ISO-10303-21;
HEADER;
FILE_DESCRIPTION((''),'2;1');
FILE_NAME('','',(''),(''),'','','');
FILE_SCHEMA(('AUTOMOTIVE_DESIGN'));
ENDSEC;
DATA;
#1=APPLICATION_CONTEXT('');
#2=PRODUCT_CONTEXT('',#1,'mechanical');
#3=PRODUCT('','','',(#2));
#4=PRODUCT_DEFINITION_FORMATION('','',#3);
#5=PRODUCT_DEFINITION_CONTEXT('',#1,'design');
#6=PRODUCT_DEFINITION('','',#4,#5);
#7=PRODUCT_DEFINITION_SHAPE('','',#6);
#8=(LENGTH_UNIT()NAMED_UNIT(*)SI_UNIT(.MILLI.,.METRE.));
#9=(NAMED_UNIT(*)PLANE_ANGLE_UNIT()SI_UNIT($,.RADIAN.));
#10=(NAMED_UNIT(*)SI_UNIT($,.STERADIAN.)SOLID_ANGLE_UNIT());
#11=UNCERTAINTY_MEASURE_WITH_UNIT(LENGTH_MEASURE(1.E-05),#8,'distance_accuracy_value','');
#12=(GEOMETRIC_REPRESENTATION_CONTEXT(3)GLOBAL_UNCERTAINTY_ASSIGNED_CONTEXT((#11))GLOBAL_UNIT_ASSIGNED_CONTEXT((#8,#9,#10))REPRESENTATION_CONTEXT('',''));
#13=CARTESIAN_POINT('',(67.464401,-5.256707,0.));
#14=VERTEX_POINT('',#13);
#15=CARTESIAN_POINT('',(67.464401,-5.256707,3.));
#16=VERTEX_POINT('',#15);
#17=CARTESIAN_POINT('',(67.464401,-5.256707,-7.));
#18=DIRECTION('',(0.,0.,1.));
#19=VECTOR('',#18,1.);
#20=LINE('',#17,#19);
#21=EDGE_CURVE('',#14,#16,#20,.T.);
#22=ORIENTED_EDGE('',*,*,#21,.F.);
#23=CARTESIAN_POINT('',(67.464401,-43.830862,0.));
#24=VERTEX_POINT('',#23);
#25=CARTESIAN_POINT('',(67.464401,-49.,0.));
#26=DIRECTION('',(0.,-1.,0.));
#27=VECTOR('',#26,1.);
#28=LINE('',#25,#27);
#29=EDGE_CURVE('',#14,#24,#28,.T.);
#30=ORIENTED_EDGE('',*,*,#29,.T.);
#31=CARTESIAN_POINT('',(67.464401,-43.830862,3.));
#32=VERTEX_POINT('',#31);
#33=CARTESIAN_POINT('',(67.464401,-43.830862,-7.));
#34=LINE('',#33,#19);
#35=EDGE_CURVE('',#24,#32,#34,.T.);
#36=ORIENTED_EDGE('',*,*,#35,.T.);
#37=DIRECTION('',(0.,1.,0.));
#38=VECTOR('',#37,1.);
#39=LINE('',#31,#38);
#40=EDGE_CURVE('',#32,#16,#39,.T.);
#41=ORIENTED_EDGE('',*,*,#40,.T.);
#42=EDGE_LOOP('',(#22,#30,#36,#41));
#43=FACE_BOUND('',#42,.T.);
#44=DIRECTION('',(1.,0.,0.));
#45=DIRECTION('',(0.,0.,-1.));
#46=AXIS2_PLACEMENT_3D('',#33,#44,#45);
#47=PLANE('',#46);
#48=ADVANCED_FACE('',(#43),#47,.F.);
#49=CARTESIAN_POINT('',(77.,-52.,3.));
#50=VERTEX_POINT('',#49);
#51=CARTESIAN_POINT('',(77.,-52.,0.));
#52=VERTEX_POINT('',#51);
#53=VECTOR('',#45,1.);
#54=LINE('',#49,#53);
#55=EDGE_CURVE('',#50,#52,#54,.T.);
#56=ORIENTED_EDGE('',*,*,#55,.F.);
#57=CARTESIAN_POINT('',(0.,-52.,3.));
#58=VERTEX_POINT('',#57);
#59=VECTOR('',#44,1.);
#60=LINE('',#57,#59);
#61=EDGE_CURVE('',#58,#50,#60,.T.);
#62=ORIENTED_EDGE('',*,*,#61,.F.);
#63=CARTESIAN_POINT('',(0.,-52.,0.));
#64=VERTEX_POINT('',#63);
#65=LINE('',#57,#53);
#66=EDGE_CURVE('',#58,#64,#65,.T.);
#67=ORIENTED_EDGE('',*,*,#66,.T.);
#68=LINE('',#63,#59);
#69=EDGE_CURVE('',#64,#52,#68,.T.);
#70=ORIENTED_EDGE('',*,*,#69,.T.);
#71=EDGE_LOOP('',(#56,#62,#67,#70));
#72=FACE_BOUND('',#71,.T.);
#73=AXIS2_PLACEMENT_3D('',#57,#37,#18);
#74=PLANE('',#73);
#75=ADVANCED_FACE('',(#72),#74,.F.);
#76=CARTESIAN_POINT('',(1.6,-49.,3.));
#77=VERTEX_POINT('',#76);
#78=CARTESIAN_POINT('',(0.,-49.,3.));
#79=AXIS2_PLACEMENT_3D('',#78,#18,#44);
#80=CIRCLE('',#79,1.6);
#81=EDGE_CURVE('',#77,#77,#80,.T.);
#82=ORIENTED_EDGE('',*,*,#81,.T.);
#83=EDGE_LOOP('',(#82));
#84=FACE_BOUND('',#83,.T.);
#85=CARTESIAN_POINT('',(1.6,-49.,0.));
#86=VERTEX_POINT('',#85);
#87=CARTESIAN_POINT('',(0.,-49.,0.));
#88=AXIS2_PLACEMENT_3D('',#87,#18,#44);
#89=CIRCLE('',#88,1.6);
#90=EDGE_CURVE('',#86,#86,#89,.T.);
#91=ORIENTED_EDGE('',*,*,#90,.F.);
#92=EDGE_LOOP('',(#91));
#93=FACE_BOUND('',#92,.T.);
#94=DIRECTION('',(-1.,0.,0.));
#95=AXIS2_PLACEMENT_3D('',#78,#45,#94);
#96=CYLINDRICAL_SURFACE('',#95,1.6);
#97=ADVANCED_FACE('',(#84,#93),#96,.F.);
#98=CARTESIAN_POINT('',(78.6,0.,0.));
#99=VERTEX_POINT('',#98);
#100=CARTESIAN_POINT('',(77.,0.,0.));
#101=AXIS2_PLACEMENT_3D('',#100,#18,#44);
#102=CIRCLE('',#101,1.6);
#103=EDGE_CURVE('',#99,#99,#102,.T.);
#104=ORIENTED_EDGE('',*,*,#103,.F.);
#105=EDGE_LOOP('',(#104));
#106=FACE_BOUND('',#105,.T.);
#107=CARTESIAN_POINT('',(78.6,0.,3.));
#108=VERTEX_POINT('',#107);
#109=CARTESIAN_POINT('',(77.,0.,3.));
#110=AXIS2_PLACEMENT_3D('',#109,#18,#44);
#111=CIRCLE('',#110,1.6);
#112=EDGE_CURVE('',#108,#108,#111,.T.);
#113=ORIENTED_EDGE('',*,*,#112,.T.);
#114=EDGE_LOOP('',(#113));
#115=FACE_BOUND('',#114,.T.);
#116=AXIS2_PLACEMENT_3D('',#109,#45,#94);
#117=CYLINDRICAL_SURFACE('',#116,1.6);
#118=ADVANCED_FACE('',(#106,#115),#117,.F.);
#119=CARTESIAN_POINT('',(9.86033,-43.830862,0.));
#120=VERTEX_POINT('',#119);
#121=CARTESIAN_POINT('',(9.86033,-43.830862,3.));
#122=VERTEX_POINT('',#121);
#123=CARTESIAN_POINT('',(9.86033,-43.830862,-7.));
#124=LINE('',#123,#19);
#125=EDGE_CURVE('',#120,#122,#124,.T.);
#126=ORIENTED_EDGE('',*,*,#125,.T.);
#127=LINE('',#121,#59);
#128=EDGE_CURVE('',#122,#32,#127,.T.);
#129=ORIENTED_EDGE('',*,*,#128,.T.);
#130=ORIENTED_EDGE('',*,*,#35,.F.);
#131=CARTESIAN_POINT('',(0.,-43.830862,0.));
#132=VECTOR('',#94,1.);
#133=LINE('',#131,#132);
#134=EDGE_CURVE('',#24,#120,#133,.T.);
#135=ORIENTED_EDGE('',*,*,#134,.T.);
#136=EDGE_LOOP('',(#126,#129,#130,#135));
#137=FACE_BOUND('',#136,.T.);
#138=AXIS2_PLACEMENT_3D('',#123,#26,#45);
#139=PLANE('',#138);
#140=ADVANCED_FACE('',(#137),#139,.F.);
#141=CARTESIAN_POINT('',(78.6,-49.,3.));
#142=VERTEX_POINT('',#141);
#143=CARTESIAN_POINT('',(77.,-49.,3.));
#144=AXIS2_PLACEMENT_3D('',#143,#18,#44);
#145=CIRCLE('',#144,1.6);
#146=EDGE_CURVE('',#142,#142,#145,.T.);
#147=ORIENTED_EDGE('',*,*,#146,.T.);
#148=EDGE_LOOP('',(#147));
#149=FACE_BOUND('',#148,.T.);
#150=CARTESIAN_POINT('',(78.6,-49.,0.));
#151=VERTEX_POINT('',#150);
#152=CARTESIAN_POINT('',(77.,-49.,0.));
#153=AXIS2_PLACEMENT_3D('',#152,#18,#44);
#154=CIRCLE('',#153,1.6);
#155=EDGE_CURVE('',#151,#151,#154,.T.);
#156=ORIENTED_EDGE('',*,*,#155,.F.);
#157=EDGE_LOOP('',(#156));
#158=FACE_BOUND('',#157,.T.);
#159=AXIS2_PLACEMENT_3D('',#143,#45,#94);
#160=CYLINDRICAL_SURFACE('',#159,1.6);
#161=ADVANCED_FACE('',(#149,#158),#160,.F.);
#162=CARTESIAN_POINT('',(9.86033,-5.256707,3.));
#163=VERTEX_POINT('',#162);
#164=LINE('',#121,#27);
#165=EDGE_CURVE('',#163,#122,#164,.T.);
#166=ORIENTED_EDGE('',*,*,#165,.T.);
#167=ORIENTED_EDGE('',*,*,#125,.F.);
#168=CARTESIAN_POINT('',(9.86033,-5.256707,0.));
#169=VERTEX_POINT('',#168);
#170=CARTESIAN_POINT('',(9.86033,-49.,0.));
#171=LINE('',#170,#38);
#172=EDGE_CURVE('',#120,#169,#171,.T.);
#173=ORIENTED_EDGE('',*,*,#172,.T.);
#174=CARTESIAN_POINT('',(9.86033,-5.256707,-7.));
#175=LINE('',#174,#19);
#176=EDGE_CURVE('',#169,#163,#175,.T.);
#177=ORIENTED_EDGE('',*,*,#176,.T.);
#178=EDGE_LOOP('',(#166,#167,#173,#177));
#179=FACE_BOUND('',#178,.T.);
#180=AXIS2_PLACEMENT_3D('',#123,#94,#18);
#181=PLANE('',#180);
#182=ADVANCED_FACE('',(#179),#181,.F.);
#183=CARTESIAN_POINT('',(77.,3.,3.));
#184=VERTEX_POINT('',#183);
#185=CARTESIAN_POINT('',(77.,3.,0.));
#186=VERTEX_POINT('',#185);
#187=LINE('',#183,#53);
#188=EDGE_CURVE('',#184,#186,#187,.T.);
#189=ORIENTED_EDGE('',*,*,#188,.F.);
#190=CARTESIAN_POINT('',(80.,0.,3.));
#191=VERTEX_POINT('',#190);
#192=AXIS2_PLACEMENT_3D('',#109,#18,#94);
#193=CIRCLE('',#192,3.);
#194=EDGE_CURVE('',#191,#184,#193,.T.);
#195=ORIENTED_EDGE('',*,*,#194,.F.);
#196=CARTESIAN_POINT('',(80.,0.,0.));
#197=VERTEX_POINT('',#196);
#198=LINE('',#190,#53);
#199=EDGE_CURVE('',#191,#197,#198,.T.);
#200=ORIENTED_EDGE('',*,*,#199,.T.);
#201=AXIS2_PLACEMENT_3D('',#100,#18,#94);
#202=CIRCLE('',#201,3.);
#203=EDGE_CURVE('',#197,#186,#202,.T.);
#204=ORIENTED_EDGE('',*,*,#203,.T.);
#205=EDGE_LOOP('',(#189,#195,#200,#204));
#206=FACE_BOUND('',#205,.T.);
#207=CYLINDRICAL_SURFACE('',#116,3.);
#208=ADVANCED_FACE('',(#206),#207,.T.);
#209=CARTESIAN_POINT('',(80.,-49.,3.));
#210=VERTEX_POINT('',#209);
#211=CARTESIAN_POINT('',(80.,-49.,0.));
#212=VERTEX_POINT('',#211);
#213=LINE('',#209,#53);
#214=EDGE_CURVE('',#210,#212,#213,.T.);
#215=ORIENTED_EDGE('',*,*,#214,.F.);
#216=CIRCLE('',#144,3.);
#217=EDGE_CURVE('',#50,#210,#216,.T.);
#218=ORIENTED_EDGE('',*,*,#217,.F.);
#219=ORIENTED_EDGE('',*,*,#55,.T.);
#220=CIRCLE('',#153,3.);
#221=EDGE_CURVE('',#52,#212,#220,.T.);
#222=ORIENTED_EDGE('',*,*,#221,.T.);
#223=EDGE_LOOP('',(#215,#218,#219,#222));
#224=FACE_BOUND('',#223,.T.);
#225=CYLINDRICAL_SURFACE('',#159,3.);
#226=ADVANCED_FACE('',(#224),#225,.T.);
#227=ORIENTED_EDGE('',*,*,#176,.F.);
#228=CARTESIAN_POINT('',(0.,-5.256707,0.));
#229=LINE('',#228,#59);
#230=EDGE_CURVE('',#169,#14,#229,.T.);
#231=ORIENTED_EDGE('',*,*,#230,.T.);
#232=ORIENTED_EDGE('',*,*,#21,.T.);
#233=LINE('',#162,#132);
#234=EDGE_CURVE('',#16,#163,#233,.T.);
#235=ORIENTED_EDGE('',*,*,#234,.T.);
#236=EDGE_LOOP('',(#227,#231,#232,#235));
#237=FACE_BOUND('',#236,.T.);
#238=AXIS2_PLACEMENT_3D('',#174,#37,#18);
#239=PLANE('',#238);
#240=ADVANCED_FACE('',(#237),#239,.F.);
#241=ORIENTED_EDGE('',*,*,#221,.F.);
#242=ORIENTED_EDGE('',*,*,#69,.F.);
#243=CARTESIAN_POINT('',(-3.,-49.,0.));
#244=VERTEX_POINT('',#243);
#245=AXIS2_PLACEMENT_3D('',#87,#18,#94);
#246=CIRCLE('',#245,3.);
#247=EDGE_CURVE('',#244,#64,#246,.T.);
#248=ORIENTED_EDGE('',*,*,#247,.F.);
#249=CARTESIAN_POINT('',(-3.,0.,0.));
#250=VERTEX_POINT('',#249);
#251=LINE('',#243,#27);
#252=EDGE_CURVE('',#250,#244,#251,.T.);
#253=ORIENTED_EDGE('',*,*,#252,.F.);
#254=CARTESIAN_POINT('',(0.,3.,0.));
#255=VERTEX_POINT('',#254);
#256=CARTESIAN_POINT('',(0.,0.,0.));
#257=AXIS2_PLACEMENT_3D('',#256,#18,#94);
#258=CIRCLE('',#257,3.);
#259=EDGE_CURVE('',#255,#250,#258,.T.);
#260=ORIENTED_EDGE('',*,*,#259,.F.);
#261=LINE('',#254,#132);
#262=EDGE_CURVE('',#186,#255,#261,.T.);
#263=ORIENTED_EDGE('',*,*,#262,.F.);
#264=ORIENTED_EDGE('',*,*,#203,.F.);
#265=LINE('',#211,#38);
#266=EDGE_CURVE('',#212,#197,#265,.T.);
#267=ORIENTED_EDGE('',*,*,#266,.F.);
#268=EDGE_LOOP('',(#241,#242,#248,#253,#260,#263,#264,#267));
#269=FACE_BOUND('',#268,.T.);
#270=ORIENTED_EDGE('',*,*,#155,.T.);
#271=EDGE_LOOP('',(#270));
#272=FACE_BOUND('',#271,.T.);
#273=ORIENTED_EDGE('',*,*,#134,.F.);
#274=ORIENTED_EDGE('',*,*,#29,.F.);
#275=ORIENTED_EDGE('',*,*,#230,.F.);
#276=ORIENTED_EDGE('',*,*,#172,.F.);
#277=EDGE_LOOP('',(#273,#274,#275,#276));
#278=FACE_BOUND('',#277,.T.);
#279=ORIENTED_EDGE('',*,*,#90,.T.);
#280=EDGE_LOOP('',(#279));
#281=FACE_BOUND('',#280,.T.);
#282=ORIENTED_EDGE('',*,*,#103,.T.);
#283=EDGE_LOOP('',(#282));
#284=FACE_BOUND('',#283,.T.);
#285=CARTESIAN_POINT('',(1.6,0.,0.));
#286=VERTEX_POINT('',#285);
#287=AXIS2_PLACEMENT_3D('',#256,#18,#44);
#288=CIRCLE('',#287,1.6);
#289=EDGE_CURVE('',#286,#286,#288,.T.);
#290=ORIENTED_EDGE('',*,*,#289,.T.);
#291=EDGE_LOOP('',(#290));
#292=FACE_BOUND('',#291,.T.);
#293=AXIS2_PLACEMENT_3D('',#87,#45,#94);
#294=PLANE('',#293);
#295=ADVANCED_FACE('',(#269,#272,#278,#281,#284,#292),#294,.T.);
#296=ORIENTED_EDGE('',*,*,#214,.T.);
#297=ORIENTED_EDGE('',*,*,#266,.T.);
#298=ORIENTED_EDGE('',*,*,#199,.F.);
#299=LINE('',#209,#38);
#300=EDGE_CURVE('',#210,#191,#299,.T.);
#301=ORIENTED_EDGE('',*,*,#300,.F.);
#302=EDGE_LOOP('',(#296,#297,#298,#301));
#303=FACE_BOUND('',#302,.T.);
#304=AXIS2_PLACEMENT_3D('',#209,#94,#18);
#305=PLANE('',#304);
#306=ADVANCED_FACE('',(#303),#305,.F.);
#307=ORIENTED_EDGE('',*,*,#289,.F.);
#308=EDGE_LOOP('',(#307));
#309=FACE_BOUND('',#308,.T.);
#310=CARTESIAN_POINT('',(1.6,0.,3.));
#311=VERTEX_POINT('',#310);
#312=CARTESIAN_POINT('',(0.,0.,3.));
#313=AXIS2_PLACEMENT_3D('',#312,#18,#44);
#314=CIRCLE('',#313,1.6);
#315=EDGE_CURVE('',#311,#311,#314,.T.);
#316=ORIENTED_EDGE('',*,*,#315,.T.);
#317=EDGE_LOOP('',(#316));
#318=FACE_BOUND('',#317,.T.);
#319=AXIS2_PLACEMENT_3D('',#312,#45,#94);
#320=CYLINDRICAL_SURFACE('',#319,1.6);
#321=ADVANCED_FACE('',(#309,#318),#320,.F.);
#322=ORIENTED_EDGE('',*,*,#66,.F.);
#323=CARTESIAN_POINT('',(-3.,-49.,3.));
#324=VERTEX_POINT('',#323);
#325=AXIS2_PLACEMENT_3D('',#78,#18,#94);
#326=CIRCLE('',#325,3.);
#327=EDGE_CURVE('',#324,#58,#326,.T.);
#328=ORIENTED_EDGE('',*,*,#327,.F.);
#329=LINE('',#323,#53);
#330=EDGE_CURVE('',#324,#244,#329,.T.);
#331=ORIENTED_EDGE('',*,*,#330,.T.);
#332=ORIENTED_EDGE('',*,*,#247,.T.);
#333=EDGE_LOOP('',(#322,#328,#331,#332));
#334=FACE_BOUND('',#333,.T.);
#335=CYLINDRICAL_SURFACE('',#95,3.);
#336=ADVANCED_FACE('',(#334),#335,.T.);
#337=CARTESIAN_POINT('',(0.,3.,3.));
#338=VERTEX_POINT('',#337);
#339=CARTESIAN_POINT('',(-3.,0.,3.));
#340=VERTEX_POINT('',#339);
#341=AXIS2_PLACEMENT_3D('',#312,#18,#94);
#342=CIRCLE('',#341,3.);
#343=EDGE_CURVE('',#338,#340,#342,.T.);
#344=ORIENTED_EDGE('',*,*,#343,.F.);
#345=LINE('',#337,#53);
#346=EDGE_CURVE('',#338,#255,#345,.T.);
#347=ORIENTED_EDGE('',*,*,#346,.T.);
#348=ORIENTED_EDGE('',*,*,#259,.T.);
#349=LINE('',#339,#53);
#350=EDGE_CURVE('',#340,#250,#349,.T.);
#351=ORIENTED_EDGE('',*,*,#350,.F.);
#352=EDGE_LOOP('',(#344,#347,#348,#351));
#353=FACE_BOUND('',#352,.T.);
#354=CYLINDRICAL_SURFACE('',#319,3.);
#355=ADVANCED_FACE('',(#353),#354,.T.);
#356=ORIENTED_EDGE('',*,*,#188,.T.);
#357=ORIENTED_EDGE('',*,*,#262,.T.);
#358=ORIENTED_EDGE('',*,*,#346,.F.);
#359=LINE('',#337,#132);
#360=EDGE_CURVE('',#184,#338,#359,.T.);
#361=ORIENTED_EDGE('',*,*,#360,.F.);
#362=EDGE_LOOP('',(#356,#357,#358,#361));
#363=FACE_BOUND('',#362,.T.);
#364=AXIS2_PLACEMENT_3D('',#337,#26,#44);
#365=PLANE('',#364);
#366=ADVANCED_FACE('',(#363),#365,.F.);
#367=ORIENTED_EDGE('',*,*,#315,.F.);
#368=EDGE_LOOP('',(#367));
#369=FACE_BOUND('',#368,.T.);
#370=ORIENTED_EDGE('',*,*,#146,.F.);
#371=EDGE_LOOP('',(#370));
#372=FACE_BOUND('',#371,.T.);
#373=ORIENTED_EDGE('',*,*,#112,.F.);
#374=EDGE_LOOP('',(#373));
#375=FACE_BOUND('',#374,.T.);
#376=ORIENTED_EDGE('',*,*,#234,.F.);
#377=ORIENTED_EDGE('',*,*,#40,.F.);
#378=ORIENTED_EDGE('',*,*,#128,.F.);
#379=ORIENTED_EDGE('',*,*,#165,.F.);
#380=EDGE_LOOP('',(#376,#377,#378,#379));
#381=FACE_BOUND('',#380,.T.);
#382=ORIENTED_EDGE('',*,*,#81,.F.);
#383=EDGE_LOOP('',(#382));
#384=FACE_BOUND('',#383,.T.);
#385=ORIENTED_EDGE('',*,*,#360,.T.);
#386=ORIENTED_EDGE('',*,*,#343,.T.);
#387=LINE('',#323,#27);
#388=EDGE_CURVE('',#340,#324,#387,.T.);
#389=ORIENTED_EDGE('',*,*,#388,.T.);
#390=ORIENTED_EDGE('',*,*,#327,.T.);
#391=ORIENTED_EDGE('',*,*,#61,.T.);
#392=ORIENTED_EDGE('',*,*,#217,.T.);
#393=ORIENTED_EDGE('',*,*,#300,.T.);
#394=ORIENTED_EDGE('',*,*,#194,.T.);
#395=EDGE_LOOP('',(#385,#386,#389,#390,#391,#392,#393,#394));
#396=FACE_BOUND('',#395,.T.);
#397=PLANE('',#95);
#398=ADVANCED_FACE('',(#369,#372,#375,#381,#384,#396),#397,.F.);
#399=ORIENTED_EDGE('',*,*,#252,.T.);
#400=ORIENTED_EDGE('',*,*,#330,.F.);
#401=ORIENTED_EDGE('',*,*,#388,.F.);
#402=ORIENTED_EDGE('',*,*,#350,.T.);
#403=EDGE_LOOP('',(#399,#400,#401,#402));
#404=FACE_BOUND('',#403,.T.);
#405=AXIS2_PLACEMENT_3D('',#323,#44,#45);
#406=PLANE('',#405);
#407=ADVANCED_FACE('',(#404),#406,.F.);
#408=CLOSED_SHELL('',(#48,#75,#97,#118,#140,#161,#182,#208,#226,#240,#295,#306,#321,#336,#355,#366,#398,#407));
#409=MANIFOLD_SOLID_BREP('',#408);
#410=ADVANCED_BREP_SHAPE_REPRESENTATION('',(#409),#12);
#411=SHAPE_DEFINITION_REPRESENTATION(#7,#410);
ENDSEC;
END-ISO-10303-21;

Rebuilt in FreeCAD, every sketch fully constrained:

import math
import FreeCAD as App
import Part
import Sketcher
Q = App.Units.Quantity


def add_polygon(sketch, points):
    """Adds a closed chain of lines whose ends are joined by coincident constraints."""
    first, n = sketch.GeometryCount, len(points)
    for a, b in zip(points, points[1:] + points[:1]):
        sketch.addGeometry(Part.LineSegment(App.Vector(*a, 0), App.Vector(*b, 0)), False)
    for i in range(n):
        sketch.addConstraint(Sketcher.Constraint("Coincident", first + i, 2, first + (i + 1) % n, 1))

doc = App.newDocument("Part")
params = doc.addObject("Spreadsheet::Sheet", "Params")
for row, (alias, value) in enumerate([
    ("sketch1_radius", "3 mm"),
    ("sketch1_diameter", "3.2 mm"),
    ("sketch1_width", "77 mm"),
    ("sketch1_width2", "44 mm"),
    ("sketch1_height", "49 mm"),
    ("pad1_length", "3 mm"),
    ("pocket1_length", "10 mm"),
], start=1):
    params.set(f"A{row}", alias)
    params.set(f"B{row}", "=" + value)
    params.setAlias(f"B{row}", alias)

body = doc.addObject("PartDesign::Body", "Body")

sketch1 = body.newObject("Sketcher::SketchObject", "Sketch")
sketch1.AttachmentSupport = (doc.getObject("XY_Plane"), [""])
sketch1.MapMode = "FlatFace"
sketch1.addGeometry(Part.LineSegment(App.Vector(0, -52, 0), App.Vector(77, -52, 0)), False)
sketch1.addGeometry(Part.ArcOfCircle(Part.Circle(App.Vector(77, -49, 0), App.Vector(0, 0, 1), 3), math.radians(-90), math.radians(0)), False)
sketch1.addGeometry(Part.LineSegment(App.Vector(80, -49, 0), App.Vector(80, 0, 0)), False)
sketch1.addGeometry(Part.ArcOfCircle(Part.Circle(App.Vector(77, 0, 0), App.Vector(0, 0, 1), 3), math.radians(0), math.radians(90)), False)
sketch1.addGeometry(Part.LineSegment(App.Vector(77, 3, 0), App.Vector(0, 3, 0)), False)
sketch1.addGeometry(Part.ArcOfCircle(Part.Circle(App.Vector(0, 0, 0), App.Vector(0, 0, 1), 3), math.radians(90), math.radians(180)), False)
sketch1.addGeometry(Part.LineSegment(App.Vector(-3, 0, 0), App.Vector(-3, -49, 0)), False)
sketch1.addGeometry(Part.ArcOfCircle(Part.Circle(App.Vector(0, -49, 0), App.Vector(0, 0, 1), 3), math.radians(180), math.radians(270)), False)
sketch1.addGeometry(Part.Circle(App.Vector(0, -49, 0), App.Vector(0, 0, 1), 1.6), False)
sketch1.addGeometry(Part.Circle(App.Vector(77, -49, 0), App.Vector(0, 0, 1), 1.6), False)
sketch1.addGeometry(Part.Circle(App.Vector(0, 0, 0), App.Vector(0, 0, 1), 1.6), False)
sketch1.addGeometry(Part.LineSegment(App.Vector(60.5, -41.5, 0), App.Vector(16.5, -41.5, 0)), False)
sketch1.addGeometry(Part.ArcOfCircle(Part.Circle(App.Vector(16.5, -38.5, 0), App.Vector(0, 0, 1), 3), math.radians(180), math.radians(270)), False)
sketch1.addGeometry(Part.LineSegment(App.Vector(13.5, -38.5, 0), App.Vector(13.5, -10.5, 0)), False)
sketch1.addGeometry(Part.ArcOfCircle(Part.Circle(App.Vector(16.5, -10.5, 0), App.Vector(0, 0, 1), 3), math.radians(90), math.radians(180)), False)
sketch1.addGeometry(Part.LineSegment(App.Vector(16.5, -7.5, 0), App.Vector(60.5, -7.5, 0)), False)
sketch1.addGeometry(Part.ArcOfCircle(Part.Circle(App.Vector(60.5, -10.5, 0), App.Vector(0, 0, 1), 3), math.radians(0), math.radians(90)), False)
sketch1.addGeometry(Part.LineSegment(App.Vector(63.5, -10.5, 0), App.Vector(63.5, -38.5, 0)), False)
sketch1.addGeometry(Part.ArcOfCircle(Part.Circle(App.Vector(60.5, -38.5, 0), App.Vector(0, 0, 1), 3), math.radians(-90), math.radians(0)), False)
sketch1.addGeometry(Part.Circle(App.Vector(77, 0, 0), App.Vector(0, 0, 1), 1.6), False)
sketch1.addConstraint(Sketcher.Constraint("Tangent", 0, 2, 1, 1))
sketch1.addConstraint(Sketcher.Constraint("Tangent", 1, 2, 2, 1))
sketch1.addConstraint(Sketcher.Constraint("Tangent", 2, 2, 3, 1))
sketch1.addConstraint(Sketcher.Constraint("Tangent", 3, 2, 4, 1))
sketch1.addConstraint(Sketcher.Constraint("Tangent", 4, 2, 5, 1))
sketch1.addConstraint(Sketcher.Constraint("Tangent", 5, 2, 6, 1))
sketch1.addConstraint(Sketcher.Constraint("Tangent", 6, 2, 7, 1))
sketch1.addConstraint(Sketcher.Constraint("Tangent", 7, 2, 0, 1))
sketch1.addConstraint(Sketcher.Constraint("Tangent", 11, 2, 12, 2))
sketch1.addConstraint(Sketcher.Constraint("Tangent", 12, 1, 13, 1))
sketch1.addConstraint(Sketcher.Constraint("Tangent", 13, 2, 14, 2))
sketch1.addConstraint(Sketcher.Constraint("Tangent", 14, 1, 15, 1))
sketch1.addConstraint(Sketcher.Constraint("Tangent", 15, 2, 16, 2))
sketch1.addConstraint(Sketcher.Constraint("Tangent", 16, 1, 17, 1))
sketch1.addConstraint(Sketcher.Constraint("Tangent", 17, 2, 18, 2))
sketch1.addConstraint(Sketcher.Constraint("Tangent", 18, 1, 11, 1))
sketch1.addConstraint(Sketcher.Constraint("Horizontal", 0))
sketch1.addConstraint(Sketcher.Constraint("Vertical", 2))
sketch1.addConstraint(Sketcher.Constraint("Horizontal", 4))
sketch1.addConstraint(Sketcher.Constraint("Vertical", 6))
sketch1.addConstraint(Sketcher.Constraint("Horizontal", 11))
sketch1.addConstraint(Sketcher.Constraint("Vertical", 13))
sketch1.addConstraint(Sketcher.Constraint("Horizontal", 15))
sketch1.addConstraint(Sketcher.Constraint("Vertical", 17))
sketch1.addConstraint(Sketcher.Constraint("Coincident", 5, 3, -1, 1))
sketch1.addConstraint(Sketcher.Constraint("Coincident", 10, 3, -1, 1))
sketch1.addConstraint(Sketcher.Constraint("Coincident", 8, 3, 7, 3))
sketch1.addConstraint(Sketcher.Constraint("Coincident", 9, 3, 1, 3))
sketch1.addConstraint(Sketcher.Constraint("Coincident", 19, 3, 3, 3))
sketch1.addConstraint(Sketcher.Constraint("Equal", 1, 3))
sketch1.addConstraint(Sketcher.Constraint("Equal", 3, 5))
sketch1.addConstraint(Sketcher.Constraint("Equal", 5, 7))
sketch1.addConstraint(Sketcher.Constraint("Equal", 8, 9))
sketch1.addConstraint(Sketcher.Constraint("Equal", 9, 10))
sketch1.addConstraint(Sketcher.Constraint("Equal", 7, 12))
sketch1.addConstraint(Sketcher.Constraint("Equal", 12, 14))
sketch1.addConstraint(Sketcher.Constraint("Equal", 14, 16))
sketch1.addConstraint(Sketcher.Constraint("Equal", 16, 18))
sketch1.addConstraint(Sketcher.Constraint("Equal", 10, 19))
sketch1.addConstraint(Sketcher.Constraint("Radius", 1, Q("3 mm")))
sketch1.addConstraint(Sketcher.Constraint("Diameter", 8, Q("3.2 mm")))
sketch1.addConstraint(Sketcher.Constraint("DistanceX", 0, 1, 0, 2, Q("77 mm")))
sketch1.addConstraint(Sketcher.Constraint("DistanceX", 11, 2, 11, 1, Q("44 mm")))
sketch1.addConstraint(Sketcher.Constraint("DistanceY", 2, 1, 2, 2, Q("49 mm")))
sketch1.addConstraint(Sketcher.Constraint("DistanceY", 13, 1, 13, 2, Q("28 mm")))
sketch1.addConstraint(Sketcher.Constraint("DistanceX", -1, 1, 12, 3, Q("16.5 mm")))
sketch1.addConstraint(Sketcher.Constraint("DistanceY", 12, 3, -1, 1, Q("38.5 mm")))
sketch1.setExpression("Constraints[39]", "Params.sketch1_radius")
sketch1.setExpression("Constraints[40]", "Params.sketch1_diameter")
sketch1.setExpression("Constraints[41]", "Params.sketch1_width")
sketch1.setExpression("Constraints[42]", "Params.sketch1_width2")
sketch1.setExpression("Constraints[43]", "Params.sketch1_height")
pad1 = body.newObject("PartDesign::Pad", "Pad")
pad1.Profile = sketch1
pad1.setExpression("Length", "Params.pad1_length")

sketch2 = body.newObject("Sketcher::SketchObject", "Sketch001")
sketch2.AttachmentSupport = (doc.getObject("XY_Plane"), [""])
sketch2.MapMode = "FlatFace"
sketch2.AttachmentOffset = App.Placement(App.Vector(0, 0, 3), App.Rotation())
add_polygon(sketch2, [(10, -5), (10, -44), (67, -44), (67, -5)])
sketch2.addConstraint(Sketcher.Constraint("Vertical", 0))
sketch2.addConstraint(Sketcher.Constraint("Horizontal", 1))
sketch2.addConstraint(Sketcher.Constraint("Vertical", 2))
sketch2.addConstraint(Sketcher.Constraint("Horizontal", 3))
sketch2.addConstraint(Sketcher.Constraint("DistanceX", 1, 1, 1, 2, Q("57.604071 mm")))
sketch2.addConstraint(Sketcher.Constraint("DistanceX", -1, 1, 1, 2, Q("67.464401 mm")))
sketch2.addConstraint(Sketcher.Constraint("DistanceY", 0, 2, 0, 1, Q("38.574154 mm")))
sketch2.addConstraint(Sketcher.Constraint("DistanceY", 0, 2, -1, 1, Q("43.830862 mm")))
pocket1 = body.newObject("PartDesign::Pocket", "Pocket")
pocket1.Profile = sketch2
pocket1.setExpression("Length", "Params.pocket1_length")

doc.recompute()
